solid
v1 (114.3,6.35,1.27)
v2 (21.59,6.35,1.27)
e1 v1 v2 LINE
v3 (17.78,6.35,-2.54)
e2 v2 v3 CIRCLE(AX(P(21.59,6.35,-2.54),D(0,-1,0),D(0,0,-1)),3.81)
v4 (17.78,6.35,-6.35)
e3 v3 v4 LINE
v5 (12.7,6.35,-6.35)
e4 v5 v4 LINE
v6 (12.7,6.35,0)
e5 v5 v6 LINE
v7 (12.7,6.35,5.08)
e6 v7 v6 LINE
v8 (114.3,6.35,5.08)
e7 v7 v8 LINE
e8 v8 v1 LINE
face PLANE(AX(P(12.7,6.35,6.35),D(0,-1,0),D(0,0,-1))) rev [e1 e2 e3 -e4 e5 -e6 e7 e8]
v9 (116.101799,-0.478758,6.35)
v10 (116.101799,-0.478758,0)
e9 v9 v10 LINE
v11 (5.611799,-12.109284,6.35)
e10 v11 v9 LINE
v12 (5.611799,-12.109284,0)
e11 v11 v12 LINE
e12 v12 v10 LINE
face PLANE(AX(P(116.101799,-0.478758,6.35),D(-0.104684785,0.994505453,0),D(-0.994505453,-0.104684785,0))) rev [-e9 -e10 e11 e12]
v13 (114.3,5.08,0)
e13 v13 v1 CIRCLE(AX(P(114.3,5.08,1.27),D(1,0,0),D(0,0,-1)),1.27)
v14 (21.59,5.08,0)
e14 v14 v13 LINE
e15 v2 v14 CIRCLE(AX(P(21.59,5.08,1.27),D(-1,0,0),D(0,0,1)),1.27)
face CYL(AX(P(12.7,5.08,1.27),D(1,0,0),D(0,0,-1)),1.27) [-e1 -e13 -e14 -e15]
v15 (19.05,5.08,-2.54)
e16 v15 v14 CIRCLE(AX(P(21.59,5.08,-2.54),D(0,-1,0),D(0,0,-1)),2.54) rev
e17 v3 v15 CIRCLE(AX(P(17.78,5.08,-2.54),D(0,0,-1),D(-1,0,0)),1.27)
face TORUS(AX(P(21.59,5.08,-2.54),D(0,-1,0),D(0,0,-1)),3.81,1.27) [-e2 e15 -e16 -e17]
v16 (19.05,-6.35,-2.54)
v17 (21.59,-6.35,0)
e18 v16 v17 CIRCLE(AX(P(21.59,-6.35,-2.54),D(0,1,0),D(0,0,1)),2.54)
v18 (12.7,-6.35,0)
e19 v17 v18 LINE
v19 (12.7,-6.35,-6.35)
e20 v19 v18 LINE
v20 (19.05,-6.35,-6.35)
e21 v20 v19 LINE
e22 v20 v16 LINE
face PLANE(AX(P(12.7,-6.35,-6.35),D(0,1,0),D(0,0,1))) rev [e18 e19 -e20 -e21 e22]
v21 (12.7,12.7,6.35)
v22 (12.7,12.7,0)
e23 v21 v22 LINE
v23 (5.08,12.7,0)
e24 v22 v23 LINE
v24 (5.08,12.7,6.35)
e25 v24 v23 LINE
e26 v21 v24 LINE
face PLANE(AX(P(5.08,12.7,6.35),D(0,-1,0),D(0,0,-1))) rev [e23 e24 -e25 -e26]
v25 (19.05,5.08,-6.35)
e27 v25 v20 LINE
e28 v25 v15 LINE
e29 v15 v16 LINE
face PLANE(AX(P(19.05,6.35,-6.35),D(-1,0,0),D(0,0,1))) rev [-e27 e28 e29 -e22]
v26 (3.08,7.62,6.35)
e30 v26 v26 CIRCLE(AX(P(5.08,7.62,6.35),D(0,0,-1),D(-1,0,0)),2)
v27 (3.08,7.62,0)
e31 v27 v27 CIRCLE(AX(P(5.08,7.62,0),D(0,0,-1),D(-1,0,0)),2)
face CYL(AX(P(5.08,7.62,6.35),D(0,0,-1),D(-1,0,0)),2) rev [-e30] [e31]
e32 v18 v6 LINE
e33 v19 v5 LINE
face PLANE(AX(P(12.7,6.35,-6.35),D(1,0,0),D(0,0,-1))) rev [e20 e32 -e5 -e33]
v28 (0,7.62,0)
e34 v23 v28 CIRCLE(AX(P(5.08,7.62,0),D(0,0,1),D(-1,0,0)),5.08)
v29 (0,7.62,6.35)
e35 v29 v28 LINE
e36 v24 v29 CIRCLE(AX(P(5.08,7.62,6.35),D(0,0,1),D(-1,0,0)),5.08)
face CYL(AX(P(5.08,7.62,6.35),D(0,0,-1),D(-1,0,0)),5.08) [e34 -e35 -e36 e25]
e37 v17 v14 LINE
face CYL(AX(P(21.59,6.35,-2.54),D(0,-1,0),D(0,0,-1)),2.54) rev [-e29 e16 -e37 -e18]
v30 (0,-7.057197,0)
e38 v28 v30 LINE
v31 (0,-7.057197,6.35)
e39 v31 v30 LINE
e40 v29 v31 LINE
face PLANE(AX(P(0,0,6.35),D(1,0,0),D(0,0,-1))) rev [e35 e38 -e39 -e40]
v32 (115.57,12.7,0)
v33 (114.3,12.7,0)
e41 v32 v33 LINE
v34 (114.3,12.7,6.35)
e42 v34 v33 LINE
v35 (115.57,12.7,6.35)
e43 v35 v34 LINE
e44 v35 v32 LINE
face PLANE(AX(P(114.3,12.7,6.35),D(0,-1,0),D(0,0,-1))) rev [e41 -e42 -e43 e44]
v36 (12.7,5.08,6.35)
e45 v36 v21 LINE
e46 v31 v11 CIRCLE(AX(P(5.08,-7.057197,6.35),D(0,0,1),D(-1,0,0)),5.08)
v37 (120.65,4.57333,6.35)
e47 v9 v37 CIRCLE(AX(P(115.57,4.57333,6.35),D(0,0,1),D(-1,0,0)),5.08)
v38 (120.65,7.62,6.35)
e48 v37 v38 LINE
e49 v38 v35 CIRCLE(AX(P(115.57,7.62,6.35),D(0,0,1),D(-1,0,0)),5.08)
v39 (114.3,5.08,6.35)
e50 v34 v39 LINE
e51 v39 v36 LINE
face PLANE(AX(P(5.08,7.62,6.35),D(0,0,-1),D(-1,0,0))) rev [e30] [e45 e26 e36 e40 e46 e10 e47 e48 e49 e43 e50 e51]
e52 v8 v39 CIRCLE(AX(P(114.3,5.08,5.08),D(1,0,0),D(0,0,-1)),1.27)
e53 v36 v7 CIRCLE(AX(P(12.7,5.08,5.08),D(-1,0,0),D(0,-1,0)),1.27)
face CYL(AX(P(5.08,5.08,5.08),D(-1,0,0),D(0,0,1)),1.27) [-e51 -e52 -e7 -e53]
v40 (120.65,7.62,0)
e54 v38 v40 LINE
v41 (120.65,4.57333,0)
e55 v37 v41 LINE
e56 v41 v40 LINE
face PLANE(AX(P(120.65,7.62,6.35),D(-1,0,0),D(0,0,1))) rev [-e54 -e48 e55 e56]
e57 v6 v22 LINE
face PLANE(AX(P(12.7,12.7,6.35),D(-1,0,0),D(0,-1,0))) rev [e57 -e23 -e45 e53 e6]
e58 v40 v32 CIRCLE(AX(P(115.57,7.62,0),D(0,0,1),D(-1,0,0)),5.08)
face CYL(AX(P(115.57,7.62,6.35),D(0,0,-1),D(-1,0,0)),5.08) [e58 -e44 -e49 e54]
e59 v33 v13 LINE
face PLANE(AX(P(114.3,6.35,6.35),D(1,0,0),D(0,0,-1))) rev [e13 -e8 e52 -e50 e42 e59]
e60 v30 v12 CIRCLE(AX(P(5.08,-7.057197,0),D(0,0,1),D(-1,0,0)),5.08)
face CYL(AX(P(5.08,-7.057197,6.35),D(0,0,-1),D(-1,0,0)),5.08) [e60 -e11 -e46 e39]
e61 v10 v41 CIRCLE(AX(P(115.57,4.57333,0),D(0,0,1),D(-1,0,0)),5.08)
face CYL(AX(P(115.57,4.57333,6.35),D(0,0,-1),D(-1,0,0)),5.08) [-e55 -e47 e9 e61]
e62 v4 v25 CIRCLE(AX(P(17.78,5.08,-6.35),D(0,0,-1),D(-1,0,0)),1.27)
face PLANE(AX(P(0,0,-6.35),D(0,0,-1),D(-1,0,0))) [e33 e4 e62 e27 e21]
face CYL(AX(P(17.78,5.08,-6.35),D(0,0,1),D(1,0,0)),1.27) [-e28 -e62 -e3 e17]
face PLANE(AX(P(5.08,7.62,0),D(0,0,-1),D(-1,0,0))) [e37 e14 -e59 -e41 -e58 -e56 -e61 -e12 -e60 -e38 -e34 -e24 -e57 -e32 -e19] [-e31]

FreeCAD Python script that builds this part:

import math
import FreeCAD as App
import Part
import Sketcher
from FreeCAD import Vector
Q = App.Units.Quantity


def edges_at(feature, points):
    """Names of the edges that pass closest to the given points."""
    edges = feature.Shape.Edges
    near = lambda p: min(range(len(edges)), key=lambda i: edges[i].distToShape(Part.Vertex(*p))[0])
    return sorted({f"Edge{near(p) + 1}" for p in points})


def add_polygon(sketch, points):
    """Adds a closed chain of lines whose ends are joined by coincident constraints."""
    first, n = sketch.GeometryCount, len(points)
    for a, b in zip(points, points[1:] + points[:1]):
        sketch.addGeometry(Part.LineSegment(App.Vector(*a, 0), App.Vector(*b, 0)), False)
    for i in range(n):
        sketch.addConstraint(Sketcher.Constraint("Coincident", first + i, 2, first + (i + 1) % n, 1))

doc = App.newDocument("Part")
body = doc.addObject("PartDesign::Body", "Body")

# Sketch on XY plane
sketch1 = body.newObject("Sketcher::SketchObject", "Sketch")
sketch1.AttachmentSupport = (doc.getObject("XY_Plane"), [""])
sketch1.MapMode = "FlatFace"
sketch1.addGeometry([
    Part.ArcOfCircle(Part.Circle(Vector(5.08, 7.62, 0), Vector(0, 0, 1), 5.08), math.radians(90), math.radians(180)),  # 0
    Part.LineSegment(Vector(0, 7.62, 0), Vector(0, -7.057197, 0)),  # 1
    Part.ArcOfCircle(Part.Circle(Vector(5.08, -7.057197, 0), Vector(0, 0, 1), 5.08), math.radians(180), math.radians(276.009006)),  # 2
    Part.LineSegment(Vector(5.611799, -12.109284, 0), Vector(116.101799, -0.478758, 0)),  # 3
    Part.ArcOfCircle(Part.Circle(Vector(115.57, 4.57333, 0), Vector(0, 0, 1), 5.08), math.radians(-83.990994), math.radians(0)),  # 4
    Part.LineSegment(Vector(120.65, 4.57333, 0), Vector(120.65, 7.62, 0)),  # 5
    Part.ArcOfCircle(Part.Circle(Vector(115.57, 7.62, 0), Vector(0, 0, 1), 5.08), math.radians(0), math.radians(90)),  # 6
    Part.LineSegment(Vector(115.57, 12.7, 0), Vector(114.3, 12.7, 0)),  # 7
    Part.LineSegment(Vector(114.3, 12.7, 0), Vector(114.3, 6.35, 0)),  # 8
    Part.LineSegment(Vector(114.3, 6.35, 0), Vector(12.7, 6.35, 0)),  # 9
    Part.LineSegment(Vector(12.7, 6.35, 0), Vector(12.7, 12.7, 0)),  # 10
    Part.LineSegment(Vector(12.7, 12.7, 0), Vector(5.08, 12.7, 0)),  # 11
], False)
sketch1.addConstraint([
    Sketcher.Constraint("Tangent", 0, 2, 1, 1),
    Sketcher.Constraint("Tangent", 1, 2, 2, 1),
    Sketcher.Constraint("Tangent", 2, 2, 3, 1),
    Sketcher.Constraint("Tangent", 3, 2, 4, 1),
    Sketcher.Constraint("Tangent", 4, 2, 5, 1),
    Sketcher.Constraint("Tangent", 5, 2, 6, 1),
    Sketcher.Constraint("Tangent", 6, 2, 7, 1),
    Sketcher.Constraint("Coincident", 7, 2, 8, 1),
    Sketcher.Constraint("Coincident", 8, 2, 9, 1),
    Sketcher.Constraint("Coincident", 9, 2, 10, 1),
    Sketcher.Constraint("Coincident", 10, 2, 11, 1),
    Sketcher.Constraint("Tangent", 11, 2, 0, 1),
    Sketcher.Constraint("Vertical", 1),
    Sketcher.Constraint("Vertical", 5),
    Sketcher.Constraint("Horizontal", 7),
    Sketcher.Constraint("Vertical", 8),
    Sketcher.Constraint("Horizontal", 9),
    Sketcher.Constraint("Vertical", 10),
    Sketcher.Constraint("Horizontal", 11),
    Sketcher.Constraint("Equal", 0, 2),
    Sketcher.Constraint("Equal", 2, 4),
    Sketcher.Constraint("Equal", 4, 6),
    Sketcher.Constraint("PointOnObject", 0, 2, -2),
    Sketcher.Constraint("Horizontal", 0, 3, 6, 3),
    Sketcher.Constraint("Radius", 0, Q("0.2 in")),
    Sketcher.Constraint("DistanceX", 9, 2, 9, 1, Q("4 in")),
    Sketcher.Constraint("DistanceX", 11, 2, 11, 1, Q("0.3 in")),
    Sketcher.Constraint("DistanceX", 7, 2, 7, 1, Q("0.05 in")),
    Sketcher.Constraint("DistanceY", 8, 2, 8, 1, Q("0.25 in")),
    Sketcher.Constraint("DistanceY", -1, 1, 0, 3, Q("0.3 in")),
    Sketcher.Constraint("DistanceY", 5, 1, 5, 2, 3.04667),
    Sketcher.Constraint("DistanceX", -1, 1, 2, 2, 5.611799),
])
pad1 = body.newObject("PartDesign::Pad", "Pad")
pad1.Profile = sketch1
pad1.Length = Q("0.25 in")

# Sketch on XY plane
sketch2 = body.newObject("Sketcher::SketchObject", "Sketch001")
sketch2.AttachmentSupport = (doc.getObject("XY_Plane"), [""])
sketch2.MapMode = "FlatFace"
add_polygon(sketch2, [(19.05, 6.35), (19.05, -6.35), (12.7, -6.35), (12.7, 6.35)])  # lines 0-3
sketch2.addConstraint([
    Sketcher.Constraint("Vertical", 0),
    Sketcher.Constraint("Horizontal", 1),
    Sketcher.Constraint("Vertical", 2),
    Sketcher.Constraint("Horizontal", 3),
    Sketcher.Constraint("DistanceY", 0, 2, 0, 1, Q("0.5 in")),
    Sketcher.Constraint("DistanceX", 1, 2, 1, 1, Q("0.25 in")),
    Sketcher.Constraint("DistanceX", -1, 1, 1, 2, Q("0.5 in")),
    Sketcher.Constraint("DistanceY", 0, 2, -1, 1, Q("0.25 in")),
])
pad2 = body.newObject("PartDesign::Pad", "Pad001")
pad2.Profile = sketch2
pad2.Length = Q("0.25 in")
pad2.Reversed = True
doc.recompute()

fillet = body.newObject("PartDesign::Fillet", "Fillet")
fillet.Base = (pad2, edges_at(pad2, [(19.05, 0, 0)]))
fillet.Radius = Q("0.1 in")
doc.recompute()

fillet2 = body.newObject("PartDesign::Fillet", "Fillet001")
fillet2.Base = (fillet, edges_at(fillet, [
    (67.945, 6.35, 0),
    (63.5, 6.35, 6.35),
    (19.05, 6.35, -4.445),
    (19.794, 6.35, -0.744),
]))
fillet2.Radius = Q("0.05 in")

# Sketch on XY plane
sketch3 = body.newObject("Sketcher::SketchObject", "Sketch002")
sketch3.AttachmentSupport = (doc.getObject("XY_Plane"), [""])
sketch3.MapMode = "FlatFace"
sketch3.addGeometry(Part.Circle(Vector(5.08, 7.62, 0), Vector(0, 0, 1), 2), False)
sketch3.addConstraint([
    Sketcher.Constraint("DistanceX", -1, 1, 0, 3, Q("0.2 in")),
    Sketcher.Constraint("DistanceY", -1, 1, 0, 3, Q("0.3 in")),
    Sketcher.Constraint("Diameter", 0, 4.0),
])
pocket1 = body.newObject("PartDesign::Pocket", "Pocket")
pocket1.Profile = sketch3
pocket1.Length = Q("0.25 in")
pocket1.Reversed = True

doc.recompute()
